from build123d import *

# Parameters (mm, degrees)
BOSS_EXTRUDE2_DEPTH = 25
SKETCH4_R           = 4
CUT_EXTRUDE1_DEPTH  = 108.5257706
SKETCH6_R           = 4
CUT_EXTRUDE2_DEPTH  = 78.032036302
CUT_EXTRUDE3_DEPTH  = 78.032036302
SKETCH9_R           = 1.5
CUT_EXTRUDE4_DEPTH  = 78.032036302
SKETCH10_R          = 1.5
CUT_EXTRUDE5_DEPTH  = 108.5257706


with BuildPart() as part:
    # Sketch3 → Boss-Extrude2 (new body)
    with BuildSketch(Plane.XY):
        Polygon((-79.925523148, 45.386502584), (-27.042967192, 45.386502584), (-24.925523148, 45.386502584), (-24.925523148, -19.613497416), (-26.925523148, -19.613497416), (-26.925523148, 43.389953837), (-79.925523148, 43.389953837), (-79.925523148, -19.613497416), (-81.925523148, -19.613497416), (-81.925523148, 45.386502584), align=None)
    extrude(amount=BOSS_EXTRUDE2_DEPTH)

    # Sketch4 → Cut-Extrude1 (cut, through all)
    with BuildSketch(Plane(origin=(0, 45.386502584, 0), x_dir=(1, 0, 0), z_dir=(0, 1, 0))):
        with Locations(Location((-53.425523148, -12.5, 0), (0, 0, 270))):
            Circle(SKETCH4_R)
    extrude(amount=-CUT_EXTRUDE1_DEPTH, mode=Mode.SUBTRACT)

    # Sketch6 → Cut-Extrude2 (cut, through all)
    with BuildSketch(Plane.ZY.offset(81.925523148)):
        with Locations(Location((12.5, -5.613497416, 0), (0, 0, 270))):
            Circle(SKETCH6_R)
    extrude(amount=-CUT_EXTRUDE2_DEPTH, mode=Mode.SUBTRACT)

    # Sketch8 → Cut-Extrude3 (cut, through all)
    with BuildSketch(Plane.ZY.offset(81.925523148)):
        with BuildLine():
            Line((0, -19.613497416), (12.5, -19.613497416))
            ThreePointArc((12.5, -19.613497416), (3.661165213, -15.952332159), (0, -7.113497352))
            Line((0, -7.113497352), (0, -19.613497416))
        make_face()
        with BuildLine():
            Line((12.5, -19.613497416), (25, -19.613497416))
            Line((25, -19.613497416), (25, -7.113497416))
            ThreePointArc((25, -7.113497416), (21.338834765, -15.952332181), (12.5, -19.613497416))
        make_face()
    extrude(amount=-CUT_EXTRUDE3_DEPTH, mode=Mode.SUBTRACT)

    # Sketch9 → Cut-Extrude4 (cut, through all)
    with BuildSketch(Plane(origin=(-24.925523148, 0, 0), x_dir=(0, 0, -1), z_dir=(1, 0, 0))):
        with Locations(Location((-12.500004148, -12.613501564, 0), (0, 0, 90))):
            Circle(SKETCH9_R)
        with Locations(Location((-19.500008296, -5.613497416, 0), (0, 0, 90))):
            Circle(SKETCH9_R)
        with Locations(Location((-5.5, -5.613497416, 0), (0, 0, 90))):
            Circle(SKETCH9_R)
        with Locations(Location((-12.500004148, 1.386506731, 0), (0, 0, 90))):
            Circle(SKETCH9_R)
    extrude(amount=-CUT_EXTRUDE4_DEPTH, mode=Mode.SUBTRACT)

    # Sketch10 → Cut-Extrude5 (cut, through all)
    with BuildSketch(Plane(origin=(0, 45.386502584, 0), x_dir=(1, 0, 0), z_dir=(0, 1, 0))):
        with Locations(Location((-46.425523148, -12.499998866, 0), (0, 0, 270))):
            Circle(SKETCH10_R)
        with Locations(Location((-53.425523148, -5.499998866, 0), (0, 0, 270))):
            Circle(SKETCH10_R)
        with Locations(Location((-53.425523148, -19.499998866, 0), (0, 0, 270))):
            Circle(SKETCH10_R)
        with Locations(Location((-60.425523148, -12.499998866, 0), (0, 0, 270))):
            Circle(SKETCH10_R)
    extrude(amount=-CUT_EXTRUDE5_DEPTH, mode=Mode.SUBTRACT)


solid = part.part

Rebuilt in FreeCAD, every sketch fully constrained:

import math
import FreeCAD as App
import Part
import Sketcher
Q = App.Units.Quantity

doc = App.newDocument("Part")
body = doc.addObject("PartDesign::Body", "Body")

sketch1 = doc.addObject("Sketcher::SketchObject", "Sketch")
body.addObject(sketch1)
sketch1.AttachmentSupport = (doc.XY_Plane, [""])
sketch1.MapMode = "FlatFace"
sketch1.addGeometry([
    Part.LineSegment(App.Vector(-24.9, 45.4, 0), App.Vector(-81.9, 45.4, 0)),
    Part.LineSegment(App.Vector(-81.9, 45.4, 0), App.Vector(-81.9, -19.6, 0)),
    Part.LineSegment(App.Vector(-81.9, -19.6, 0), App.Vector(-79.9, -19.6, 0)),
    Part.LineSegment(App.Vector(-79.9, -19.6, 0), App.Vector(-79.9, 43.4, 0)),
    Part.LineSegment(App.Vector(-79.9, 43.4, 0), App.Vector(-26.9, 43.4, 0)),
    Part.LineSegment(App.Vector(-26.9, 43.4, 0), App.Vector(-26.9, -19.6, 0)),
    Part.LineSegment(App.Vector(-26.9, -19.6, 0), App.Vector(-24.9, -19.6, 0)),
    Part.LineSegment(App.Vector(-24.9, -19.6, 0), App.Vector(-24.9, 45.4, 0)),
], False)
sketch1.addConstraint([
    Sketcher.Constraint("Coincident", 0, 2, 1, 1),
    Sketcher.Constraint("Coincident", 1, 2, 2, 1),
    Sketcher.Constraint("Coincident", 2, 2, 3, 1),
    Sketcher.Constraint("Coincident", 3, 2, 4, 1),
    Sketcher.Constraint("Coincident", 4, 2, 5, 1),
    Sketcher.Constraint("Coincident", 5, 2, 6, 1),
    Sketcher.Constraint("Coincident", 6, 2, 7, 1),
    Sketcher.Constraint("Coincident", 7, 2, 0, 1),
    Sketcher.Constraint("Horizontal", 0),
    Sketcher.Constraint("Vertical", 1),
    Sketcher.Constraint("Horizontal", 2),
    Sketcher.Constraint("Vertical", 3),
    Sketcher.Constraint("Horizontal", 4),
    Sketcher.Constraint("Vertical", 5),
    Sketcher.Constraint("Horizontal", 6),
    Sketcher.Constraint("Vertical", 7),
    Sketcher.Constraint("Horizontal", 2, 2, 5, 2),
    Sketcher.Constraint("Equal", 2, 6),
    Sketcher.Constraint("DistanceX", 0, 2, 0, 1, Q("57 mm")),
    Sketcher.Constraint("DistanceX", 2, 1, 2, 2, Q("2 mm")),
    Sketcher.Constraint("DistanceY", 1, 2, 1, 1, Q("65 mm")),
    Sketcher.Constraint("DistanceY", 3, 1, 3, 2, Q("63.003451 mm")),
    Sketcher.Constraint("DistanceX", 0, 2, -1, 1, Q("81.925523 mm")),
    Sketcher.Constraint("DistanceY", -1, 1, 0, 2, Q("45.386503 mm")),
])
pad1 = doc.addObject("PartDesign::Pad", "Pad")
body.addObject(pad1)
pad1.Profile = sketch1
pad1.Length = 25

sketch2 = doc.addObject("Sketcher::SketchObject", "Sketch001")
body.addObject(sketch2)
sketch2.AttachmentSupport = (doc.XZ_Plane, [""])
sketch2.MapMode = "FlatFace"
sketch2.AttachmentOffset = App.Placement(App.Vector(0, 0, -45.386503), App.Rotation())
sketch2.addGeometry(Part.Circle(App.Vector(-53.4, 12.5, 0), App.Vector(0, 0, 1), 4), False)
sketch2.addConstraint([
    Sketcher.Constraint("Diameter", 0, Q("8 mm")),
    Sketcher.Constraint("DistanceY", -1, 1, 0, 3, Q("12.5 mm")),
    Sketcher.Constraint("DistanceX", 0, 3, -1, 1, Q("53.425523 mm")),
])
pocket1 = doc.addObject("PartDesign::Pocket", "Pocket")
body.addObject(pocket1)
pocket1.Profile = sketch2
pocket1.Type = "ThroughAll"
pocket1.Reversed = True

sketch3 = doc.addObject("Sketcher::SketchObject", "Sketch002")
body.addObject(sketch3)
sketch3.AttachmentSupport = (doc.YZ_Plane, [""])
sketch3.MapMode = "FlatFace"
sketch3.AttachmentOffset = App.Placement(App.Vector(0, 0, -81.925523), App.Rotation())
sketch3.addGeometry(Part.Circle(App.Vector(-5.6, 12.5, 0), App.Vector(0, 0, 1), 4), False)
sketch3.addConstraint([
    Sketcher.Constraint("Diameter", 0, Q("8 mm")),
    Sketcher.Constraint("DistanceY", -1, 1, 0, 3, Q("12.5 mm")),
    Sketcher.Constraint("DistanceX", 0, 3, -1, 1, Q("5.613497 mm")),
])
pocket2 = doc.addObject("PartDesign::Pocket", "Pocket001")
body.addObject(pocket2)
pocket2.Profile = sketch3
pocket2.Type = "ThroughAll"
pocket2.Reversed = True

sketch4 = doc.addObject("Sketcher::SketchObject", "Sketch003")
body.addObject(sketch4)
sketch4.AttachmentSupport = (doc.YZ_Plane, [""])
sketch4.MapMode = "FlatFace"
sketch4.AttachmentOffset = App.Placement(App.Vector(0, 0, -81.925523), App.Rotation())
sketch4.addGeometry([
    Part.LineSegment(App.Vector(-20, 0, 0), App.Vector(-20, 12, 0)),
    Part.ArcOfCircle(Part.Circle(App.Vector(-7, 12, 0), App.Vector(0, 0, 1), 12), math.radians(180), math.radians(270)),
    Part.LineSegment(App.Vector(-7, 0, 0), App.Vector(-20, 0, 0)),
    Part.LineSegment(App.Vector(-20, 12, 0), App.Vector(-20, 25, 0)),
    Part.LineSegment(App.Vector(-20, 25, 0), App.Vector(-7, 25, 0)),
    Part.ArcOfCircle(Part.Circle(App.Vector(-7, 13, 0), App.Vector(0, 0, 1), 12), math.radians(90), math.radians(180)),
], False)
sketch4.addConstraint([
    Sketcher.Constraint("Tangent", 0, 2, 1, 1),
    Sketcher.Constraint("Tangent", 1, 2, 2, 1),
    Sketcher.Constraint("Coincident", 2, 2, 0, 1),
    Sketcher.Constraint("Coincident", 3, 2, 4, 1),
    Sketcher.Constraint("Tangent", 4, 2, 5, 1),
    Sketcher.Constraint("Tangent", 5, 2, 3, 1),
    Sketcher.Constraint("Vertical", 0),
    Sketcher.Constraint("Horizontal", 2),
    Sketcher.Constraint("Vertical", 3),
    Sketcher.Constraint("Horizontal", 4),
    Sketcher.Constraint("Coincident", 5, 3, 1, 3),
    Sketcher.Constraint("Equal", 1, 5),
    Sketcher.Constraint("PointOnObject", 1, 2, -1),
    Sketcher.Constraint("Radius", 1, Q("12.5 mm")),
    Sketcher.Constraint("DistanceX", 1, 3, -1, 1, Q("7.113497 mm")),
])
pocket3 = doc.addObject("PartDesign::Pocket", "Pocket002")
body.addObject(pocket3)
pocket3.Profile = sketch4
pocket3.Type = "ThroughAll"
pocket3.Reversed = True

sketch5 = doc.addObject("Sketcher::SketchObject", "Sketch004")
body.addObject(sketch5)
sketch5.AttachmentSupport = (doc.YZ_Plane, [""])
sketch5.MapMode = "FlatFace"
sketch5.AttachmentOffset = App.Placement(App.Vector(0, 0, -24.925523), App.Rotation())
sketch5.addGeometry([
    Part.Circle(App.Vector(-12.6, 12.5, 0), App.Vector(0, 0, 1), 1.5),
    Part.Circle(App.Vector(-5.6, 19.5, 0), App.Vector(0, 0, 1), 1.5),
    Part.Circle(App.Vector(-5.6, 5.5, 0), App.Vector(0, 0, 1), 1.5),
    Part.Circle(App.Vector(1.4, 12.5, 0), App.Vector(0, 0, 1), 1.5),
], False)
sketch5.addConstraint([
    Sketcher.Constraint("Equal", 0, 1),
    Sketcher.Constraint("Equal", 1, 2),
    Sketcher.Constraint("Equal", 2, 3),
    Sketcher.Constraint("Horizontal", 0, 3, 3, 3),
    Sketcher.Constraint("Vertical", 1, 3, 2, 3),
    Sketcher.Constraint("Diameter", 0, Q("3 mm")),
    Sketcher.Constraint("DistanceY", -1, 1, 2, 3, Q("5.5 mm")),
    Sketcher.Constraint("DistanceX", 0, 3, -1, 1, Q("12.613502 mm")),
    Sketcher.Constraint("DistanceY", -1, 1, 1, 3, Q("19.500008 mm")),
    Sketcher.Constraint("DistanceX", 0, 3, 3, 3, Q("14.000008 mm")),
    Sketcher.Constraint("DistanceY", -1, 1, 0, 3, Q("12.500004 mm")),
    Sketcher.Constraint("DistanceX", 1, 3, -1, 1, Q("5.613497 mm")),
])
pocket4 = doc.addObject("PartDesign::Pocket", "Pocket003")
body.addObject(pocket4)
pocket4.Profile = sketch5
pocket4.Type = "ThroughAll"

sketch6 = doc.addObject("Sketcher::SketchObject", "Sketch005")
body.addObject(sketch6)
sketch6.AttachmentSupport = (doc.XZ_Plane, [""])
sketch6.MapMode = "FlatFace"
sketch6.AttachmentOffset = App.Placement(App.Vector(0, 0, -45.386503), App.Rotation())
sketch6.addGeometry([
    Part.Circle(App.Vector(-46.4, 12.5, 0), App.Vector(0, 0, 1), 1.5),
    Part.Circle(App.Vector(-53.4, 5.5, 0), App.Vector(0, 0, 1), 1.5),
    Part.Circle(App.Vector(-53.4, 19.5, 0), App.Vector(0, 0, 1), 1.5),
    Part.Circle(App.Vector(-60.4, 12.5, 0), App.Vector(0, 0, 1), 1.5),
], False)
sketch6.addConstraint([
    Sketcher.Constraint("Equal", 0, 1),
    Sketcher.Constraint("Equal", 1, 2),
    Sketcher.Constraint("Equal", 2, 3),
    Sketcher.Constraint("Horizontal", 0, 3, 3, 3),
    Sketcher.Constraint("Vertical", 1, 3, 2, 3),
    Sketcher.Constraint("Diameter", 0, Q("3 mm")),
    Sketcher.Constraint("DistanceX", 1, 3, 0, 3, Q("7 mm")),
    Sketcher.Constraint("DistanceY", 1, 3, 0, 3, Q("7 mm")),
    Sketcher.Constraint("DistanceY", 0, 3, 2, 3, Q("7 mm")),
    Sketcher.Constraint("DistanceX", 3, 3, 2, 3, Q("7 mm")),
    Sketcher.Constraint("DistanceY", -1, 1, 0, 3, Q("12.499999 mm")),
    Sketcher.Constraint("DistanceX", 0, 3, -1, 1, Q("46.425523 mm")),
])
pocket5 = doc.addObject("PartDesign::Pocket", "Pocket004")
body.addObject(pocket5)
pocket5.Profile = sketch6
pocket5.Type = "ThroughAll"
pocket5.Reversed = True

doc.recompute()
